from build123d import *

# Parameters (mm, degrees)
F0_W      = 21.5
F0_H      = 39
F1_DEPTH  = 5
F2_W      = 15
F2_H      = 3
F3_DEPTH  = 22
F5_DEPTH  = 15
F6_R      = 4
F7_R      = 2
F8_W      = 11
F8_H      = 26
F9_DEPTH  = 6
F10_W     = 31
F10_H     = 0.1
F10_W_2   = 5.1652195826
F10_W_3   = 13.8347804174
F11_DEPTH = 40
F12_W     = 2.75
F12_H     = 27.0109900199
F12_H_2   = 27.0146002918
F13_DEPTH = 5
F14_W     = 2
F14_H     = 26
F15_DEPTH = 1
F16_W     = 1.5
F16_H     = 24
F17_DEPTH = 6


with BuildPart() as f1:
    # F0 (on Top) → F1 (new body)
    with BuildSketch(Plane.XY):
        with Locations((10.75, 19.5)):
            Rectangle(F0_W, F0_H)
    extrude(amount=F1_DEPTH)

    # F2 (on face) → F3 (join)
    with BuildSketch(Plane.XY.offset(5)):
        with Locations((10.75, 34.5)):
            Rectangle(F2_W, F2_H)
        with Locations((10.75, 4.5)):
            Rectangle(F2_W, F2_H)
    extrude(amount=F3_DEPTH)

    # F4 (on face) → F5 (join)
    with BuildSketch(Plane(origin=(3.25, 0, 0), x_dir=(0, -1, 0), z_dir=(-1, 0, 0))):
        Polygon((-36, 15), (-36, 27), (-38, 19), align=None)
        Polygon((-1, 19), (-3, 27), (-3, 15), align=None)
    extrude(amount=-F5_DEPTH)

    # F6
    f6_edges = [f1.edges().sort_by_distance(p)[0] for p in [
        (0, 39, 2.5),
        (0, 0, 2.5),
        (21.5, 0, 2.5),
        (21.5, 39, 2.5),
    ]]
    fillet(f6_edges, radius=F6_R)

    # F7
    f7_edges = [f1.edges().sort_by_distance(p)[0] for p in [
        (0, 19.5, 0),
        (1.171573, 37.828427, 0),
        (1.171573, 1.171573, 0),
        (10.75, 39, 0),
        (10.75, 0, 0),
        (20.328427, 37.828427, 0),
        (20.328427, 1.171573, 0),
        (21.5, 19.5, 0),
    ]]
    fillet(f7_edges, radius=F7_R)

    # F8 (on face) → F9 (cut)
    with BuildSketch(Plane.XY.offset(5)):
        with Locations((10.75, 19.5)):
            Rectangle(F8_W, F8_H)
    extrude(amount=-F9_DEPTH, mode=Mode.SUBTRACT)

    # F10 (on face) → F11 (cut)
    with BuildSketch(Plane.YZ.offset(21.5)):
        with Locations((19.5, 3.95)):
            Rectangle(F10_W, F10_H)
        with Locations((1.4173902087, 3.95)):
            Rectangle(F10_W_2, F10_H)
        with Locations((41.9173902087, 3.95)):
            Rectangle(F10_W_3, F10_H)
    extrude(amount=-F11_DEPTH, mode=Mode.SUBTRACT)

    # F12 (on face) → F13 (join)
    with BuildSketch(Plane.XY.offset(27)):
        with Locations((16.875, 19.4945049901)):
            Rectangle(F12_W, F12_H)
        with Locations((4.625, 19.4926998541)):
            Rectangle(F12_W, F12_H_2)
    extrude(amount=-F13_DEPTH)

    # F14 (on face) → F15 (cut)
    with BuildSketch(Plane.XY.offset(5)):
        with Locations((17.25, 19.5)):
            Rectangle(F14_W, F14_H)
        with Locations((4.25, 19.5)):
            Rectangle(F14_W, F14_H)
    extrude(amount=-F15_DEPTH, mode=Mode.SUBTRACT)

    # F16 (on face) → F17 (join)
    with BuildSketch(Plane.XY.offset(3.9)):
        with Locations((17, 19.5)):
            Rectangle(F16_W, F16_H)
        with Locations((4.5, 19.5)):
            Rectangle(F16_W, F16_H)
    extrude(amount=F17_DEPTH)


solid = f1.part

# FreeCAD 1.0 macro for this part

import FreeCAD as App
import Part
import Sketcher
from FreeCAD import Vector
Q = App.Units.Quantity


def edges_at(feature, points):
    """Names of the edges that pass closest to the given points."""
    edges = feature.Shape.Edges
    near = lambda p: min(range(len(edges)), key=lambda i: edges[i].distToShape(Part.Vertex(*p))[0])
    return sorted({f"Edge{near(p) + 1}" for p in points})


def add_polygon(sketch, points):
    """Adds a closed chain of lines whose ends are joined by coincident constraints."""
    first, n = sketch.GeometryCount, len(points)
    for a, b in zip(points, points[1:] + points[:1]):
        sketch.addGeometry(Part.LineSegment(App.Vector(*a, 0), App.Vector(*b, 0)), False)
    for i in range(n):
        sketch.addConstraint(Sketcher.Constraint("Coincident", first + i, 2, first + (i + 1) % n, 1))

doc = App.newDocument("Part")
body = doc.addObject("PartDesign::Body", "Body")
body.AllowCompound = True

sketch1 = body.newObject("Sketcher::SketchObject", "Sketch")
sketch1.AttachmentSupport = (doc.getObject("XY_Plane"), [""])
sketch1.MapMode = "FlatFace"
add_polygon(sketch1, [(0, 39), (0, 0), (22, 0), (22, 39)])
sketch1.addConstraint([
    Sketcher.Constraint("Vertical", 0),
    Sketcher.Constraint("Horizontal", 1),
    Sketcher.Constraint("Vertical", 2),
    Sketcher.Constraint("Horizontal", 3),
    Sketcher.Constraint("Coincident", 0, 2, -1, 1),
    Sketcher.Constraint("DistanceY", 0, 2, 0, 1, Q("39 mm")),
    Sketcher.Constraint("DistanceX", 1, 1, 1, 2, Q("21.5 mm")),
])
pad1 = body.newObject("PartDesign::Pad", "Pad")
pad1.Profile = sketch1
pad1.Length = 5

sketch2 = body.newObject("Sketcher::SketchObject", "Sketch001")
sketch2.AttachmentSupport = (doc.getObject("XY_Plane"), [""])
sketch2.MapMode = "FlatFace"
sketch2.AttachmentOffset = App.Placement(Vector(0, 0, 5), App.Rotation())
add_polygon(sketch2, [(3.2, 36), (3.2, 33), (18.2, 33), (18.2, 36)])
add_polygon(sketch2, [(3.2, 6), (3.2, 3), (18.2, 3), (18.2, 6)])
sketch2.addConstraint([
    Sketcher.Constraint("Vertical", 0),
    Sketcher.Constraint("Horizontal", 1),
    Sketcher.Constraint("Vertical", 2),
    Sketcher.Constraint("Horizontal", 3),
    Sketcher.Constraint("Vertical", 4),
    Sketcher.Constraint("Horizontal", 5),
    Sketcher.Constraint("Vertical", 6),
    Sketcher.Constraint("Horizontal", 7),
    Sketcher.Constraint("Vertical", 3, 2, 4, 2),
    Sketcher.Constraint("Vertical", 2, 2, 5, 2),
    Sketcher.Constraint("Equal", 2, 4),
    Sketcher.Constraint("DistanceX", 1, 1, 1, 2, Q("15 mm")),
    Sketcher.Constraint("DistanceY", 0, 2, 0, 1, Q("3 mm")),
    Sketcher.Constraint("DistanceY", -1, 1, 0, 2, Q("33 mm")),
    Sketcher.Constraint("DistanceY", -1, 1, 4, 2, Q("3 mm")),
    Sketcher.Constraint("DistanceX", -1, 1, 0, 2, Q("3.25 mm")),
])
pad2 = body.newObject("PartDesign::Pad", "Pad001")
pad2.Profile = sketch2
pad2.Length = 22

sketch3 = body.newObject("Sketcher::SketchObject", "Sketch002")
sketch3.AttachmentSupport = (doc.getObject("YZ_Plane"), [""])
sketch3.MapMode = "FlatFace"
sketch3.AttachmentOffset = App.Placement(Vector(0, 0, 3.25), App.Rotation())
add_polygon(sketch3, [(36, 15), (36, 27), (38, 19)])
add_polygon(sketch3, [(1, 19), (3, 27), (3, 15)])
sketch3.addConstraint([
    Sketcher.Constraint("Vertical", 0),
    Sketcher.Constraint("Vertical", 4),
    Sketcher.Constraint("Horizontal", 0, 2, 3, 2),
    Sketcher.Constraint("Horizontal", 2, 2, 4, 2),
    Sketcher.Constraint("Horizontal", 1, 2, 5, 2),
    Sketcher.Constraint("Equal", 1, 3),
    Sketcher.Constraint("DistanceY", 0, 1, 0, 2, Q("12 mm")),
    Sketcher.Constraint("DistanceX", -1, 1, 0, 2, Q("36 mm")),
    Sketcher.Constraint("DistanceY", -1, 1, 0, 2, Q("27 mm")),
    Sketcher.Constraint("DistanceX", -1, 1, 1, 2, Q("38 mm")),
    Sketcher.Constraint("DistanceY", -1, 1, 1, 2, Q("19 mm")),
    Sketcher.Constraint("DistanceX", -1, 1, 3, 2, Q("3 mm")),
])
pad3 = body.newObject("PartDesign::Pad", "Pad002")
pad3.Profile = sketch3
pad3.Length = 15
doc.recompute()

fillet = body.newObject("PartDesign::Fillet", "Fillet")
fillet.Base = (pad3, edges_at(pad3, [
    (0, 39, 2.5),
    (0, 0, 2.5),
    (21.5, 0, 2.5),
    (21.5, 39, 2.5),
]))
fillet.Radius = 4
doc.recompute()

fillet2 = body.newObject("PartDesign::Fillet", "Fillet001")
fillet2.Base = (fillet, edges_at(fillet, [
    (0, 19.5, 0),
    (1.172, 37.828, 0),
    (1.172, 1.172, 0),
    (10.75, 39, 0),
    (10.75, 0, 0),
    (20.328, 37.828, 0),
    (20.328, 1.172, 0),
    (21.5, 19.5, 0),
]))
fillet2.Radius = 2

sketch4 = body.newObject("Sketcher::SketchObject", "Sketch003")
sketch4.AttachmentSupport = (doc.getObject("XY_Plane"), [""])
sketch4.MapMode = "FlatFace"
sketch4.AttachmentOffset = App.Placement(Vector(0, 0, 5), App.Rotation())
add_polygon(sketch4, [(5, 32), (5, 6), (16, 6), (16, 32)])
sketch4.addConstraint([
    Sketcher.Constraint("Vertical", 0),
    Sketcher.Constraint("Horizontal", 1),
    Sketcher.Constraint("Vertical", 2),
    Sketcher.Constraint("Horizontal", 3),
    Sketcher.Constraint("DistanceX", 1, 1, 1, 2, Q("11 mm")),
    Sketcher.Constraint("DistanceY", 0, 2, 0, 1, Q("26 mm")),
    Sketcher.Constraint("DistanceY", -1, 1, 0, 2, Q("6.5 mm")),
    Sketcher.Constraint("DistanceX", -1, 1, 0, 2, Q("5.25 mm")),
])
pocket1 = body.newObject("PartDesign::Pocket", "Pocket")
pocket1.Profile = sketch4
pocket1.Length = 6

sketch5 = body.newObject("Sketcher::SketchObject", "Sketch004")
sketch5.AttachmentSupport = (doc.getObject("YZ_Plane"), [""])
sketch5.MapMode = "FlatFace"
sketch5.AttachmentOffset = App.Placement(Vector(0, 0, 21.5), App.Rotation())
add_polygon(sketch5, [(-1.17, 4), (-1.17, 3.9), (48.83, 3.9), (48.83, 4)])
sketch5.addConstraint([
    Sketcher.Constraint("Vertical", 0),
    Sketcher.Constraint("Horizontal", 1),
    Sketcher.Constraint("Vertical", 2),
    Sketcher.Constraint("Horizontal", 3),
    Sketcher.Constraint("DistanceX", 1, 1, 1, 2, Q("50 mm")),
    Sketcher.Constraint("DistanceY", 0, 2, 0, 1, Q("0.1 mm")),
    Sketcher.Constraint("DistanceY", -1, 1, 2, 2, Q("4 mm")),
    Sketcher.Constraint("DistanceX", 0, 2, -1, 1, Q("1.16522 mm")),
])
pocket2 = body.newObject("PartDesign::Pocket", "Pocket001")
pocket2.Profile = sketch5
pocket2.Length = 40

sketch6 = body.newObject("Sketcher::SketchObject", "Sketch005")
sketch6.AttachmentSupport = (doc.getObject("XY_Plane"), [""])
sketch6.MapMode = "FlatFace"
sketch6.AttachmentOffset = App.Placement(Vector(0, 0, 27), App.Rotation())
add_polygon(sketch6, [(15.5, 33), (15.5, 6), (18.2, 6), (18.2, 33)])
add_polygon(sketch6, [(3.2, 33), (3.2, 6), (6, 6), (6, 33)])
sketch6.addConstraint([
    Sketcher.Constraint("Vertical", 0),
    Sketcher.Constraint("Horizontal", 1),
    Sketcher.Constraint("Vertical", 2),
    Sketcher.Constraint("Horizontal", 3),
    Sketcher.Constraint("Vertical", 4),
    Sketcher.Constraint("Horizontal", 5),
    Sketcher.Constraint("Vertical", 6),
    Sketcher.Constraint("Horizontal", 7),
    Sketcher.Constraint("Horizontal", 3, 2, 6, 2),
    Sketcher.Constraint("Equal", 3, 5),
    Sketcher.Constraint("DistanceY", -1, 1, 2, 2, Q("33 mm")),
    Sketcher.Constraint("DistanceX", -1, 1, 5, 2, Q("6 mm")),
    Sketcher.Constraint("DistanceX", 4, 2, 1, 2, Q("15 mm")),
    Sketcher.Constraint("DistanceX", 1, 1, 1, 2, Q("2.75 mm")),
    Sketcher.Constraint("DistanceY", 4, 2, 4, 1, Q("27.0146 mm")),
    Sketcher.Constraint("DistanceY", 0, 2, 0, 1, Q("27.01099 mm")),
])
pad4 = body.newObject("PartDesign::Pad", "Pad003")
pad4.Profile = sketch6
pad4.Length = 5
pad4.Reversed = True

sketch7 = body.newObject("Sketcher::SketchObject", "Sketch006")
sketch7.AttachmentSupport = (doc.getObject("XY_Plane"), [""])
sketch7.MapMode = "FlatFace"
sketch7.AttachmentOffset = App.Placement(Vector(0, 0, 5), App.Rotation())
add_polygon(sketch7, [(16.2, 32.5), (16.2, 6.5), (18.2, 6.5), (18.2, 32.5)])
add_polygon(sketch7, [(3.2, 32.5), (3.2, 6.5), (5.2, 6.5), (5.2, 32.5)])
sketch7.addConstraint([
    Sketcher.Constraint("Vertical", 0),
    Sketcher.Constraint("Horizontal", 1),
    Sketcher.Constraint("Vertical", 2),
    Sketcher.Constraint("Horizontal", 3),
    Sketcher.Constraint("Vertical", 4),
    Sketcher.Constraint("Horizontal", 5),
    Sketcher.Constraint("Vertical", 6),
    Sketcher.Constraint("Horizontal", 7),
    Sketcher.Constraint("Horizontal", 1, 2, 4, 2),
    Sketcher.Constraint("Horizontal", 3, 2, 6, 2),
    Sketcher.Constraint("Equal", 3, 5),
    Sketcher.Constraint("DistanceX", 1, 1, 1, 2, Q("2 mm")),
    Sketcher.Constraint("DistanceY", 0, 2, 0, 1, Q("26 mm")),
    Sketcher.Constraint("DistanceX", 4, 2, 0, 2, Q("13 mm")),
    Sketcher.Constraint("DistanceY", -1, 1, 0, 2, Q("6.5 mm")),
    Sketcher.Constraint("DistanceX", -1, 1, 0, 2, Q("16.25 mm")),
])
pocket3 = body.newObject("PartDesign::Pocket", "Pocket002")
pocket3.Profile = sketch7
pocket3.Length = 1

sketch8 = body.newObject("Sketcher::SketchObject", "Sketch007")
sketch8.AttachmentSupport = (doc.getObject("XY_Plane"), [""])
sketch8.MapMode = "FlatFace"
sketch8.AttachmentOffset = App.Placement(Vector(0, 0, 3.9), App.Rotation())
add_polygon(sketch8, [(16.2, 31.5), (16.2, 7.5), (17.8, 7.5), (17.8, 31.5)])
add_polygon(sketch8, [(3.8, 31.5), (3.8, 7.5), (5.2, 7.5), (5.2, 31.5)])
sketch8.addConstraint([
    Sketcher.Constraint("Vertical", 0),
    Sketcher.Constraint("Horizontal", 1),
    Sketcher.Constraint("Vertical", 2),
    Sketcher.Constraint("Horizontal", 3),
    Sketcher.Constraint("Vertical", 4),
    Sketcher.Constraint("Horizontal", 5),
    Sketcher.Constraint("Vertical", 6),
    Sketcher.Constraint("Horizontal", 7),
    Sketcher.Constraint("Horizontal", 1, 2, 4, 2),
    Sketcher.Constraint("Horizontal", 3, 2, 6, 2),
    Sketcher.Constraint("Equal", 3, 5),
    Sketcher.Constraint("DistanceY", 0, 2, 0, 1, Q("24 mm")),
    Sketcher.Constraint("DistanceX", 1, 1, 1, 2, Q("1.5 mm")),
    Sketcher.Constraint("DistanceX", 4, 2, 1, 2, Q("14 mm")),
    Sketcher.Constraint("DistanceY", -1, 1, 0, 2, Q("7.5 mm")),
    Sketcher.Constraint("DistanceX", -1, 1, 0, 2, Q("16.25 mm")),
])
pad5 = body.newObject("PartDesign::Pad", "Pad004")
pad5.Profile = sketch8
pad5.Length = 6

doc.recompute()
